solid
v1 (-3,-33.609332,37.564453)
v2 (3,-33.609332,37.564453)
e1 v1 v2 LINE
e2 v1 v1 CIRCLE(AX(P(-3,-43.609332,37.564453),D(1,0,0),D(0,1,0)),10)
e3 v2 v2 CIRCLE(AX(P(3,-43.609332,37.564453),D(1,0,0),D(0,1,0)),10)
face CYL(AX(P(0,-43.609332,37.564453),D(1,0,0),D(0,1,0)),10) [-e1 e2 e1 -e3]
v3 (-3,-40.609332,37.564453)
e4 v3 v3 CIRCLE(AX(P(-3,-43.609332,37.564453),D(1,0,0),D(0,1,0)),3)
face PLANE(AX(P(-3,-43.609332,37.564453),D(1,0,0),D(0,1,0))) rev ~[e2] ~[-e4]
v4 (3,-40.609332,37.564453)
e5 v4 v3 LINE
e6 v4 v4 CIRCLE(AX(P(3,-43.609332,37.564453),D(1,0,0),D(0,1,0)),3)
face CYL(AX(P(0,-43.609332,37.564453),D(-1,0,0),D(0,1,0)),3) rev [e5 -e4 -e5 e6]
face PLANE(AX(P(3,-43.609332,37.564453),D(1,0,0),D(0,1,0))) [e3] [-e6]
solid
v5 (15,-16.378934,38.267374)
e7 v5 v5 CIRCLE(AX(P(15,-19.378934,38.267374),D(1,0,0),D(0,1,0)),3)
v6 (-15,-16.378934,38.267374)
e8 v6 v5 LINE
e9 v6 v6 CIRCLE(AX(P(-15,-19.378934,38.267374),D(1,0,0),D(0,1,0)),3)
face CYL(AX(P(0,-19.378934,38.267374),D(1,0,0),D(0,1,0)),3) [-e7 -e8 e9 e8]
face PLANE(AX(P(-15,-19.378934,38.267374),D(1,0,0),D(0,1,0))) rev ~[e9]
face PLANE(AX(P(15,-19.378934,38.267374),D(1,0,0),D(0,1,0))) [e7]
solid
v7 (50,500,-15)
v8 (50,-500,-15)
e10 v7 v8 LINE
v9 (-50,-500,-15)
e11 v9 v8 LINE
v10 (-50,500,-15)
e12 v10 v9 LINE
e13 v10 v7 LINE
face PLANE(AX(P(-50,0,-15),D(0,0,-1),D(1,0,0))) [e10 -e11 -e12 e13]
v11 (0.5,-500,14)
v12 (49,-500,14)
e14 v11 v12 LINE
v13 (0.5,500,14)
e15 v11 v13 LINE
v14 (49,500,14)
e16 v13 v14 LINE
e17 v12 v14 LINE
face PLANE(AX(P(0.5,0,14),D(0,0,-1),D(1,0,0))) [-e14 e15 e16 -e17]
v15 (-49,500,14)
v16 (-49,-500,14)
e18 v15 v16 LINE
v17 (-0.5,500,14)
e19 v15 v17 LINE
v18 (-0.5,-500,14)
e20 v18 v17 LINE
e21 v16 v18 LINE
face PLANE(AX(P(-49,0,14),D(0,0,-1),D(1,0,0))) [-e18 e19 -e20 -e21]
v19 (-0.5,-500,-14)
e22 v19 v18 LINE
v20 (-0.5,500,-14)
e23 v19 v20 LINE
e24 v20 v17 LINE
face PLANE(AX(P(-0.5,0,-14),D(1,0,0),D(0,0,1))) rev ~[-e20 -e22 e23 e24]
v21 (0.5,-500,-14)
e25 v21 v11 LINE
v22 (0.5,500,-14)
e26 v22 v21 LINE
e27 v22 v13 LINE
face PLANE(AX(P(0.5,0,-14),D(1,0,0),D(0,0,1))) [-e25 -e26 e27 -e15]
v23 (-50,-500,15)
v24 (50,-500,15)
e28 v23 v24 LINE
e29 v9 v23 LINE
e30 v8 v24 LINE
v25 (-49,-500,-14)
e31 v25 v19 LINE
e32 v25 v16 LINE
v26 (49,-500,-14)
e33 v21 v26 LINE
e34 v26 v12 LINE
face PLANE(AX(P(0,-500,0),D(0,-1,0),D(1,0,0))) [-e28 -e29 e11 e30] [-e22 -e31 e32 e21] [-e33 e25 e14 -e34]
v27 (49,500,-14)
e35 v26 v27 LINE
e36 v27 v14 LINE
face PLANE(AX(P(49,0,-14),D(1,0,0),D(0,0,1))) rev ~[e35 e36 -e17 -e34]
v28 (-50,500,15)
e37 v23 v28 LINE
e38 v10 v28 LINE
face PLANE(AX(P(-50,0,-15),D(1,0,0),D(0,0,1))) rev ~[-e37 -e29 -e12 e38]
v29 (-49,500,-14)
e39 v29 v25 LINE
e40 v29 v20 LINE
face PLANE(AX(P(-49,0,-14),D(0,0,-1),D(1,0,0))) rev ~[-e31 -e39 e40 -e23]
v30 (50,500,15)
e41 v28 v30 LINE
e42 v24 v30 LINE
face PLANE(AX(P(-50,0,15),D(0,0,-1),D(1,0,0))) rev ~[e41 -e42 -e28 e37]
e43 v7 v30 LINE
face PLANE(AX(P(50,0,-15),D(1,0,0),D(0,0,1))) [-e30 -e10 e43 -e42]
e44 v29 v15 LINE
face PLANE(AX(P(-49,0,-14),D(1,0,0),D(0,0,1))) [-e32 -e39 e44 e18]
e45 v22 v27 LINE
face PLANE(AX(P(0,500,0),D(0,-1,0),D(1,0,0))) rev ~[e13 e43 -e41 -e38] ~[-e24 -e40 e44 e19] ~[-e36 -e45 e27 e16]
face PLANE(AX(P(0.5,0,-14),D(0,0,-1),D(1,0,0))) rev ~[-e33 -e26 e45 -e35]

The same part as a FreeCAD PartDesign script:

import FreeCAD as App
import Part
import Sketcher

V = App.Vector

doc = App.newDocument("Part")
params = doc.addObject("Spreadsheet::Sheet", "Params")
for row, (alias, value) in enumerate([
    ("sketch1_width", "100 mm"),
    ("sketch1_height", "30 mm"),
    ("sketch1_height2", "28 mm"),
    ("sketch1_width2", "48.5 mm"),
    ("pad1_length", "1000 mm"),
    ("sketch2_diameter", "20 mm"),
    ("sketch2_diameter2", "6 mm"),
    ("pad2_length", "6 mm"),
    ("sketch3_diameter", "6 mm"),
    ("pad3_length", "30 mm"),
], start=1):
    params.set(f"A{row}", alias)
    params.set(f"B{row}", "=" + value)
    params.setAlias(f"B{row}", alias)

body = doc.addObject("PartDesign::Body", "Body")

sketch1 = doc.addObject("Sketcher::SketchObject", "Sketch")
body.addObject(sketch1)
sketch1.AttachmentSupport = (doc.XZ_Plane, [""])
sketch1.MapMode = "FlatFace"
sketch1.addGeometry(Part.LineSegment(V(-50, 15, 0), V(-50, -15, 0)), False)
sketch1.addGeometry(Part.LineSegment(V(-50, -15, 0), V(50, -15, 0)), False)
sketch1.addGeometry(Part.LineSegment(V(50, -15, 0), V(50, 15, 0)), False)
sketch1.addGeometry(Part.LineSegment(V(50, 15, 0), V(-50, 15, 0)), False)
sketch1.addGeometry(Part.LineSegment(V(0, -14, 0), V(-49, -14, 0)), False)
sketch1.addGeometry(Part.LineSegment(V(-49, -14, 0), V(-49, 14, 0)), False)
sketch1.addGeometry(Part.LineSegment(V(-49, 14, 0), V(0, 14, 0)), False)
sketch1.addGeometry(Part.LineSegment(V(0, 14, 0), V(0, -14, 0)), False)
sketch1.addGeometry(Part.LineSegment(V(49, -14, 0), V(0, -14, 0)), False)
sketch1.addGeometry(Part.LineSegment(V(0, -14, 0), V(0, 14, 0)), False)
sketch1.addGeometry(Part.LineSegment(V(0, 14, 0), V(49, 14, 0)), False)
sketch1.addGeometry(Part.LineSegment(V(49, 14, 0), V(49, -14, 0)), False)
sketch1.addConstraint(Sketcher.Constraint("Coincident", 0, 2, 1, 1))
sketch1.addConstraint(Sketcher.Constraint("Coincident", 1, 2, 2, 1))
sketch1.addConstraint(Sketcher.Constraint("Coincident", 2, 2, 3, 1))
sketch1.addConstraint(Sketcher.Constraint("Coincident", 3, 2, 0, 1))
sketch1.addConstraint(Sketcher.Constraint("Coincident", 4, 2, 5, 1))
sketch1.addConstraint(Sketcher.Constraint("Coincident", 5, 2, 6, 1))
sketch1.addConstraint(Sketcher.Constraint("Coincident", 6, 2, 7, 1))
sketch1.addConstraint(Sketcher.Constraint("Coincident", 7, 2, 4, 1))
sketch1.addConstraint(Sketcher.Constraint("Coincident", 8, 2, 9, 1))
sketch1.addConstraint(Sketcher.Constraint("Coincident", 9, 2, 10, 1))
sketch1.addConstraint(Sketcher.Constraint("Coincident", 10, 2, 11, 1))
sketch1.addConstraint(Sketcher.Constraint("Coincident", 11, 2, 8, 1))
sketch1.addConstraint(Sketcher.Constraint("Vertical", 0))
sketch1.addConstraint(Sketcher.Constraint("Horizontal", 1))
sketch1.addConstraint(Sketcher.Constraint("Vertical", 2))
sketch1.addConstraint(Sketcher.Constraint("Horizontal", 3))
sketch1.addConstraint(Sketcher.Constraint("Horizontal", 4))
sketch1.addConstraint(Sketcher.Constraint("Vertical", 5))
sketch1.addConstraint(Sketcher.Constraint("Horizontal", 6))
sketch1.addConstraint(Sketcher.Constraint("Vertical", 7))
sketch1.addConstraint(Sketcher.Constraint("Horizontal", 8))
sketch1.addConstraint(Sketcher.Constraint("Vertical", 9))
sketch1.addConstraint(Sketcher.Constraint("Horizontal", 10))
sketch1.addConstraint(Sketcher.Constraint("Vertical", 11))
sketch1.addConstraint(Sketcher.Constraint("Symmetric", 0, 2, 2, 2, -1, 1))
sketch1.addConstraint(Sketcher.Constraint("Symmetric", 6, 2, 8, 2, -1, 1))
sketch1.addConstraint(Sketcher.Constraint("Symmetric", 4, 2, 10, 2, -1, 1))
sketch1.addConstraint(Sketcher.Constraint("Horizontal", 7, 2, 8, 2))
sketch1.addConstraint(Sketcher.Constraint("DistanceX", 1, 1, 1, 2, 100.0))
sketch1.addConstraint(Sketcher.Constraint("DistanceY", 0, 2, 0, 1, 30.0))
sketch1.addConstraint(Sketcher.Constraint("DistanceY", 5, 1, 5, 2, 28.0))
sketch1.addConstraint(Sketcher.Constraint("DistanceX", 4, 2, 4, 1, 48.5))
sketch1.addConstraint(Sketcher.Constraint("DistanceX", 4, 2, -1, 1, 49.0))
sketch1.setExpression("Constraints[28]", "Params.sketch1_width")
sketch1.setExpression("Constraints[29]", "Params.sketch1_height")
sketch1.setExpression("Constraints[30]", "Params.sketch1_height2")
sketch1.setExpression("Constraints[31]", "Params.sketch1_width2")
pad1 = doc.addObject("PartDesign::Pad", "Pad")
body.addObject(pad1)
pad1.Profile = sketch1
pad1.setExpression("Length", "Params.pad1_length")
pad1.Midplane = True
body2 = doc.addObject("PartDesign::Body", "Body001")

sketch2 = doc.addObject("Sketcher::SketchObject", "Sketch001")
body2.addObject(sketch2)
sketch2.AttachmentSupport = (doc.getObject("YZ_Plane001"), [""])
sketch2.MapMode = "FlatFace"
sketch2.addGeometry(Part.Circle(V(-43.6, 37.6, 0), V(0, 0, 1), 10), False)
sketch2.addGeometry(Part.Circle(V(-43.6, 37.6, 0), V(0, 0, 1), 3), False)
sketch2.addConstraint(Sketcher.Constraint("Coincident", 1, 3, 0, 3))
sketch2.addConstraint(Sketcher.Constraint("Diameter", 0, 20.0))
sketch2.addConstraint(Sketcher.Constraint("Diameter", 1, 6.0))
sketch2.addConstraint(Sketcher.Constraint("DistanceX", 0, 3, -1, 1, 43.609332))
sketch2.addConstraint(Sketcher.Constraint("DistanceY", -1, 1, 0, 3, 37.564453))
sketch2.setExpression("Constraints[1]", "Params.sketch2_diameter")
sketch2.setExpression("Constraints[2]", "Params.sketch2_diameter2")
pad2 = doc.addObject("PartDesign::Pad", "Pad001")
body2.addObject(pad2)
pad2.Profile = sketch2
pad2.setExpression("Length", "Params.pad2_length")
pad2.Midplane = True
body3 = doc.addObject("PartDesign::Body", "Body002")

sketch3 = doc.addObject("Sketcher::SketchObject", "Sketch002")
body3.addObject(sketch3)
sketch3.AttachmentSupport = (doc.getObject("YZ_Plane002"), [""])
sketch3.MapMode = "FlatFace"
sketch3.addGeometry(Part.Circle(V(-19.4, 38.3, 0), V(0, 0, 1), 3), False)
sketch3.addConstraint(Sketcher.Constraint("Diameter", 0, 6.0))
sketch3.addConstraint(Sketcher.Constraint("DistanceX", 0, 3, -1, 1, 19.378934))
sketch3.addConstraint(Sketcher.Constraint("DistanceY", -1, 1, 0, 3, 38.267374))
sketch3.setExpression("Constraints[0]", "Params.sketch3_diameter")
pad3 = doc.addObject("PartDesign::Pad", "Pad002")
body3.addObject(pad3)
pad3.Profile = sketch3
pad3.setExpression("Length", "Params.pad3_length")
pad3.Midplane = True

doc.recompute()
